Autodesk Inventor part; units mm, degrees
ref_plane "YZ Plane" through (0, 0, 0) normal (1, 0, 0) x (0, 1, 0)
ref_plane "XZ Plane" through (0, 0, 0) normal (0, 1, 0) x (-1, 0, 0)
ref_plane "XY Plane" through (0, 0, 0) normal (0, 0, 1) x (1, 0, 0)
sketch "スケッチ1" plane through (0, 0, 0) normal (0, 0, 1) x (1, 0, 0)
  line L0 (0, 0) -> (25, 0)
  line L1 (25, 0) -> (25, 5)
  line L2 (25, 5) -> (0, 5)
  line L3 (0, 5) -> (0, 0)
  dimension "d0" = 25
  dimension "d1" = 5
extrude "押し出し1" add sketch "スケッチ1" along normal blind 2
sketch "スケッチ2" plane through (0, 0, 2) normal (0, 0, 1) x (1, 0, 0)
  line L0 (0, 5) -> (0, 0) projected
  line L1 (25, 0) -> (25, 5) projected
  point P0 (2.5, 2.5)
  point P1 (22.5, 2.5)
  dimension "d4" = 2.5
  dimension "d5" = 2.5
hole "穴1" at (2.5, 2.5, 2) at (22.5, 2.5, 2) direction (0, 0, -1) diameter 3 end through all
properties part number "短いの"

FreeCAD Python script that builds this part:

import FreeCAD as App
import Part
import Sketcher
from FreeCAD import Vector
Q = App.Units.Quantity


def add_polygon(sketch, points):
    """Adds a closed chain of lines whose ends are joined by coincident constraints."""
    first, n = sketch.GeometryCount, len(points)
    for a, b in zip(points, points[1:] + points[:1]):
        sketch.addGeometry(Part.LineSegment(App.Vector(*a, 0), App.Vector(*b, 0)), False)
    for i in range(n):
        sketch.addConstraint(Sketcher.Constraint("Coincident", first + i, 2, first + (i + 1) % n, 1))

doc = App.newDocument("Part")
body = doc.addObject("PartDesign::Body", "Body")

# Sketch on XY plane
sketch1 = body.newObject("Sketcher::SketchObject", "Sketch")
sketch1.AttachmentSupport = (doc.getObject("XY_Plane"), [""])
sketch1.MapMode = "FlatFace"
add_polygon(sketch1, [(0, 5), (0, 0), (25, 0), (25, 5)])  # lines 0-3
sketch1.addConstraint(Sketcher.Constraint("Vertical", 0))
sketch1.addConstraint(Sketcher.Constraint("Horizontal", 1))
sketch1.addConstraint(Sketcher.Constraint("Vertical", 2))
sketch1.addConstraint(Sketcher.Constraint("Horizontal", 3))
sketch1.addConstraint(Sketcher.Constraint("Coincident", 0, 2, -1, 1))
sketch1.addConstraint(Sketcher.Constraint("DistanceX", 1, 1, 1, 2, Q("25 mm")))
sketch1.addConstraint(Sketcher.Constraint("DistanceY", 0, 2, 0, 1, Q("5 mm")))
pad1 = body.newObject("PartDesign::Pad", "Pad")
pad1.Profile = sketch1
pad1.Length = 2

# Sketch on XY plane
sketch2 = body.newObject("Sketcher::SketchObject", "Sketch001")
sketch2.AttachmentSupport = (doc.getObject("XY_Plane"), [""])
sketch2.MapMode = "FlatFace"
sketch2.AttachmentOffset = App.Placement(Vector(0, 0, 2), App.Rotation())
sketch2.addGeometry(Part.Circle(Vector(2.5, 2.5, 0), Vector(0, 0, 1), 1.5), False)
sketch2.addGeometry(Part.Circle(Vector(22.5, 2.5, 0), Vector(0, 0, 1), 1.5), False)
sketch2.addConstraint(Sketcher.Constraint("Equal", 0, 1))
sketch2.addConstraint(Sketcher.Constraint("Horizontal", 0, 3, 1, 3))
sketch2.addConstraint(Sketcher.Constraint("Diameter", 0, Q("3 mm")))
sketch2.addConstraint(Sketcher.Constraint("DistanceX", 0, 3, 1, 3, Q("20 mm")))
sketch2.addConstraint(Sketcher.Constraint("DistanceX", -1, 1, 0, 3, Q("2.5 mm")))
sketch2.addConstraint(Sketcher.Constraint("DistanceY", -1, 1, 0, 3, Q("2.5 mm")))
doc.recompute()
hole = body.newObject("PartDesign::Hole", "Hole")
hole.Profile = sketch2
hole.ThreadType = "None"
hole.Diameter = 3
hole.DepthType = "ThroughAll"

doc.recompute()
